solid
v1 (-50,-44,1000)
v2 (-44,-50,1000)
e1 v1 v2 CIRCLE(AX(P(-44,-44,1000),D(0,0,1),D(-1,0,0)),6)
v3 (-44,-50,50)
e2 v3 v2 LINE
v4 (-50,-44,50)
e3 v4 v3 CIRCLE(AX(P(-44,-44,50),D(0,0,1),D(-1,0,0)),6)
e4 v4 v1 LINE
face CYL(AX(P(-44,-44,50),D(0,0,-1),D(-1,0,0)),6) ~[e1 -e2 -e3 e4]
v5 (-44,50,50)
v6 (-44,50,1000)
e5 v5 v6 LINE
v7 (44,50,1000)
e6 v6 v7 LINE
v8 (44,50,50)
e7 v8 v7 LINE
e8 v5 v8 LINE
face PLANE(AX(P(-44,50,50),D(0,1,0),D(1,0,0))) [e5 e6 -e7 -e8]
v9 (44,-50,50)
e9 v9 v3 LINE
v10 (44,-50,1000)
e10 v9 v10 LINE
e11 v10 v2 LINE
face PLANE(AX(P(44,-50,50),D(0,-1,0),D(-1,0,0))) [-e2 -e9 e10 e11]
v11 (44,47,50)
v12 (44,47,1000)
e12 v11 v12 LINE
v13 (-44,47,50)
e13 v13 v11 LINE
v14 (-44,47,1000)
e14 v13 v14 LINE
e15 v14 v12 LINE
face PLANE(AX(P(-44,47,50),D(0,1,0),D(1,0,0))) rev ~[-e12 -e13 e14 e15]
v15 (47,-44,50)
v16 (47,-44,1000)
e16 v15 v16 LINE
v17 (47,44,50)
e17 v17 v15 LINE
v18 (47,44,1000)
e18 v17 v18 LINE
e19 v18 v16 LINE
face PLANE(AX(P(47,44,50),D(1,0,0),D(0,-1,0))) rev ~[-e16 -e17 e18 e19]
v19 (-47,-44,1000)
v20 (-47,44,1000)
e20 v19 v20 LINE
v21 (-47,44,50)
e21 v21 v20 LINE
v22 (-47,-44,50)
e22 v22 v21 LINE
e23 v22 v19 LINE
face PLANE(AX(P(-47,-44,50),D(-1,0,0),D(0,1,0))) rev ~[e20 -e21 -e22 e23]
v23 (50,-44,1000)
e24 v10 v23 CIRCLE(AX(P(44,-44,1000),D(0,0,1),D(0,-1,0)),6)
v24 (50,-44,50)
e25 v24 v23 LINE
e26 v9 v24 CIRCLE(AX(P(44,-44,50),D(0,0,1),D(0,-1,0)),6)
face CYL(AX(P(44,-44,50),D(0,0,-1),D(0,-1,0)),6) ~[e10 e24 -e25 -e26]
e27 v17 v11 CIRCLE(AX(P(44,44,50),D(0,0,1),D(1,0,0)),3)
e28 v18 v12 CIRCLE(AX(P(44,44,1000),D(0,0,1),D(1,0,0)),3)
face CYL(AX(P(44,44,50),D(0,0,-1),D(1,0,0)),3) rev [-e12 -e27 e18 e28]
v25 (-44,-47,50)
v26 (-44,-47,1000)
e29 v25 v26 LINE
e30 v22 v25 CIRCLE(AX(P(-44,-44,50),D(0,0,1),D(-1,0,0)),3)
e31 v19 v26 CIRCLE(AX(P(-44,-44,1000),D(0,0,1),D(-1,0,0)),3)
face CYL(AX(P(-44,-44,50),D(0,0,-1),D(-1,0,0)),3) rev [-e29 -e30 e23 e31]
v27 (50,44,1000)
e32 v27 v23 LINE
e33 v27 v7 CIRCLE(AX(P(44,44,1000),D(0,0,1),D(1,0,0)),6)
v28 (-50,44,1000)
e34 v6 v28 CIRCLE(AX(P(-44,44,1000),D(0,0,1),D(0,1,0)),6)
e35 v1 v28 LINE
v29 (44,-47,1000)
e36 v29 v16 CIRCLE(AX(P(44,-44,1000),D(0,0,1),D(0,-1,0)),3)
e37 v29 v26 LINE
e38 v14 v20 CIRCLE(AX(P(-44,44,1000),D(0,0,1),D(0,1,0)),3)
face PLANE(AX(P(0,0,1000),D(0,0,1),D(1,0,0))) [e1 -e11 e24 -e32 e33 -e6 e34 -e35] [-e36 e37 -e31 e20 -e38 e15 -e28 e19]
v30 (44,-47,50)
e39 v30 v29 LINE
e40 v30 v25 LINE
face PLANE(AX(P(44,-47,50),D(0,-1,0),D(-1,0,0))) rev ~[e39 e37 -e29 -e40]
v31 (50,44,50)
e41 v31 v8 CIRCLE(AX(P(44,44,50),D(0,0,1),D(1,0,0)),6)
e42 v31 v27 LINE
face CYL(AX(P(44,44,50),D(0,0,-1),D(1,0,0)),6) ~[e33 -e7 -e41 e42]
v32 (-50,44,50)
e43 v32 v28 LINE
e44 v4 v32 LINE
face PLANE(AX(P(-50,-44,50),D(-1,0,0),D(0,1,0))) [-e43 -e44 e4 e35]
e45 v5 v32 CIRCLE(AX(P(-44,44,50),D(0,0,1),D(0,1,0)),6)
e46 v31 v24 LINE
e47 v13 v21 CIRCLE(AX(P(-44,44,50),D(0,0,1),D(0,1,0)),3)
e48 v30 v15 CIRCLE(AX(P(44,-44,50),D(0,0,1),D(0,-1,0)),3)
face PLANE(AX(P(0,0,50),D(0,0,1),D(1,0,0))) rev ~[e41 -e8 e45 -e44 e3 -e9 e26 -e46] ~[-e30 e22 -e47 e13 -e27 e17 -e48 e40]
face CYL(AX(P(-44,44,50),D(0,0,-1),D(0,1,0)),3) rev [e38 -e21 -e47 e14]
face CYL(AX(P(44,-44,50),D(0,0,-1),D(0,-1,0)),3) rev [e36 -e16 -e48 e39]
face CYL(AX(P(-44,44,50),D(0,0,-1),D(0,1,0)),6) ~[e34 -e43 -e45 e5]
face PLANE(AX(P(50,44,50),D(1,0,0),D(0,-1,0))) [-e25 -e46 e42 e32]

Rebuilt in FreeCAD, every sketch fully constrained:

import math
import FreeCAD as App
import Part
import Sketcher

doc = App.newDocument("Part")
body = doc.addObject("PartDesign::Body", "Body")

# Sketch on XY plane
sketch1 = doc.addObject("Sketcher::SketchObject", "Sketch")
body.addObject(sketch1)
sketch1.AttachmentSupport = (doc.XY_Plane, [""])
sketch1.MapMode = "FlatFace"
sketch1.AttachmentOffset = App.Placement(App.Vector(0, 0, 50), App.Rotation())
sketch1.addGeometry([
    Part.LineSegment(App.Vector(-50, 44, 0), App.Vector(-50, -44, 0)),  # 0
    Part.ArcOfCircle(Part.Circle(App.Vector(-44, -44, 0), App.Vector(0, 0, 1), 6), math.radians(180), math.radians(270)),  # 1
    Part.LineSegment(App.Vector(-44, -50, 0), App.Vector(44, -50, 0)),  # 2
    Part.ArcOfCircle(Part.Circle(App.Vector(44, -44, 0), App.Vector(0, 0, 1), 6), math.radians(-90), math.radians(0)),  # 3
    Part.LineSegment(App.Vector(50, -44, 0), App.Vector(50, 44, 0)),  # 4
    Part.ArcOfCircle(Part.Circle(App.Vector(44, 44, 0), App.Vector(0, 0, 1), 6), math.radians(0), math.radians(90)),  # 5
    Part.LineSegment(App.Vector(44, 50, 0), App.Vector(-44, 50, 0)),  # 6
    Part.ArcOfCircle(Part.Circle(App.Vector(-44, 44, 0), App.Vector(0, 0, 1), 6), math.radians(90), math.radians(180)),  # 7
    Part.ArcOfCircle(Part.Circle(App.Vector(-44, 44, 0), App.Vector(0, 0, 1), 3), math.radians(90), math.radians(180)),  # 8
    Part.LineSegment(App.Vector(-44, 47, 0), App.Vector(44, 47, 0)),  # 9
    Part.ArcOfCircle(Part.Circle(App.Vector(44, 44, 0), App.Vector(0, 0, 1), 3), math.radians(0), math.radians(90)),  # 10
    Part.LineSegment(App.Vector(47, 44, 0), App.Vector(47, -44, 0)),  # 11
    Part.ArcOfCircle(Part.Circle(App.Vector(44, -44, 0), App.Vector(0, 0, 1), 3), math.radians(-90), math.radians(0)),  # 12
    Part.LineSegment(App.Vector(44, -47, 0), App.Vector(-44, -47, 0)),  # 13
    Part.ArcOfCircle(Part.Circle(App.Vector(-44, -44, 0), App.Vector(0, 0, 1), 3), math.radians(180), math.radians(270)),  # 14
    Part.LineSegment(App.Vector(-47, -44, 0), App.Vector(-47, 44, 0)),  # 15
], False)
sketch1.addConstraint([
    Sketcher.Constraint("Tangent", 0, 2, 1, 1),
    Sketcher.Constraint("Tangent", 1, 2, 2, 1),
    Sketcher.Constraint("Tangent", 2, 2, 3, 1),
    Sketcher.Constraint("Tangent", 3, 2, 4, 1),
    Sketcher.Constraint("Tangent", 4, 2, 5, 1),
    Sketcher.Constraint("Tangent", 5, 2, 6, 1),
    Sketcher.Constraint("Tangent", 6, 2, 7, 1),
    Sketcher.Constraint("Tangent", 7, 2, 0, 1),
    Sketcher.Constraint("Tangent", 8, 1, 9, 1),
    Sketcher.Constraint("Tangent", 9, 2, 10, 2),
    Sketcher.Constraint("Tangent", 10, 1, 11, 1),
    Sketcher.Constraint("Tangent", 11, 2, 12, 2),
    Sketcher.Constraint("Tangent", 12, 1, 13, 1),
    Sketcher.Constraint("Tangent", 13, 2, 14, 2),
    Sketcher.Constraint("Tangent", 14, 1, 15, 1),
    Sketcher.Constraint("Tangent", 15, 2, 8, 2),
    Sketcher.Constraint("Vertical", 0),
    Sketcher.Constraint("Horizontal", 2),
    Sketcher.Constraint("Vertical", 4),
    Sketcher.Constraint("Horizontal", 6),
    Sketcher.Constraint("Horizontal", 9),
    Sketcher.Constraint("Vertical", 11),
    Sketcher.Constraint("Horizontal", 13),
    Sketcher.Constraint("Vertical", 15),
    Sketcher.Constraint("Coincident", 8, 3, 7, 3),
    Sketcher.Constraint("Coincident", 10, 3, 5, 3),
    Sketcher.Constraint("Coincident", 12, 3, 3, 3),
    Sketcher.Constraint("Equal", 1, 3),
    Sketcher.Constraint("Equal", 3, 5),
    Sketcher.Constraint("Equal", 5, 7),
    Sketcher.Constraint("Equal", 12, 14),
    Sketcher.Constraint("Symmetric", 1, 3, 5, 3, -1, 1),
    Sketcher.Constraint("Equal", 13, 0),
    Sketcher.Constraint("Radius", 1, 6.0),
    Sketcher.Constraint("Radius", 8, 3.0),
    Sketcher.Constraint("DistanceX", 0, 2, -1, 1, 50.0),
])
pad1 = doc.addObject("PartDesign::Pad", "Pad")
body.addObject(pad1)
pad1.Profile = sketch1
pad1.Length = 950

doc.recompute()
